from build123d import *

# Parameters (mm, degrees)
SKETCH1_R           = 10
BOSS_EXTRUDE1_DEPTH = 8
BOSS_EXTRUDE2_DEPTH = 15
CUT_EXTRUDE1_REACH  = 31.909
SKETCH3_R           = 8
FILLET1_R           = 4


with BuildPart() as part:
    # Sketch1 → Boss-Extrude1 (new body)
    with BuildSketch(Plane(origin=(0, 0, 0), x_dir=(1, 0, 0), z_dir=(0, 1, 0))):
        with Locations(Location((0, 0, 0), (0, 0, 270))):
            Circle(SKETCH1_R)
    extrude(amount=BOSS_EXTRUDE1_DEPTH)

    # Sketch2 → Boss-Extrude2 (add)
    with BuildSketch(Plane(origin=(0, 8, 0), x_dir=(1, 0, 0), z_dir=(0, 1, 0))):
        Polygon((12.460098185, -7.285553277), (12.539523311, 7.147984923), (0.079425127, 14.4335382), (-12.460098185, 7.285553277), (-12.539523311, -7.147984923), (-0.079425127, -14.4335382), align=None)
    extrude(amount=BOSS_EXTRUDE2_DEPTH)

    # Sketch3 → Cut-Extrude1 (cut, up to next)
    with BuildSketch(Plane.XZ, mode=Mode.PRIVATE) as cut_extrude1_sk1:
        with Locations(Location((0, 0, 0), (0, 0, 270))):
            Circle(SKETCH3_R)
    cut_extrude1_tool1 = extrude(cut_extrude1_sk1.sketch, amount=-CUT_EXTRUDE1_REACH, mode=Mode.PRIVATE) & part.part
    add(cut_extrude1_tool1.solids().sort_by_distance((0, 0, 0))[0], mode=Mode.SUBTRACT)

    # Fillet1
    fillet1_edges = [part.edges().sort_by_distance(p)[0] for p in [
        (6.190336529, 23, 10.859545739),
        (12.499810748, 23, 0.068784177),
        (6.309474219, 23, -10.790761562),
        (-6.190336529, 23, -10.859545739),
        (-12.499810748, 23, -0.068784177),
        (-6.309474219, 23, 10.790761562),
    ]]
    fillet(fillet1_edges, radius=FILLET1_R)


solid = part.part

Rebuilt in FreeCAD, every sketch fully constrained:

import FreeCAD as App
import Part
import Sketcher

V = App.Vector
Q = App.Units.Quantity


def edges_at(feature, points):
    """Names of the edges that pass closest to the given points."""
    edges = feature.Shape.Edges
    near = lambda p: min(range(len(edges)), key=lambda i: edges[i].distToShape(Part.Vertex(*p))[0])
    return sorted({f"Edge{near(p) + 1}" for p in points})


def add_polygon(sketch, points):
    """Adds a closed chain of lines whose ends are joined by coincident constraints."""
    first, n = sketch.GeometryCount, len(points)
    for a, b in zip(points, points[1:] + points[:1]):
        sketch.addGeometry(Part.LineSegment(App.Vector(*a, 0), App.Vector(*b, 0)), False)
    for i in range(n):
        sketch.addConstraint(Sketcher.Constraint("Coincident", first + i, 2, first + (i + 1) % n, 1))

doc = App.newDocument("Part")
body = doc.addObject("PartDesign::Body", "Body")

sketch1 = body.newObject("Sketcher::SketchObject", "Sketch")
sketch1.AttachmentSupport = (doc.getObject("XZ_Plane"), [""])
sketch1.MapMode = "FlatFace"
sketch1.addGeometry(Part.Circle(V(0, 0, 0), V(0, 0, 1), 10), False)
sketch1.addConstraint([
    Sketcher.Constraint("Coincident", 0, 3, -1, 1),
    Sketcher.Constraint("Diameter", 0, Q("20 mm")),
])
pad1 = body.newObject("PartDesign::Pad", "Pad")
pad1.Profile = sketch1
pad1.Length = 8
pad1.Reversed = True

sketch2 = body.newObject("Sketcher::SketchObject", "Sketch001")
sketch2.AttachmentSupport = (doc.getObject("XZ_Plane"), [""])
sketch2.MapMode = "FlatFace"
sketch2.AttachmentOffset = App.Placement(V(0, 0, -8), App.Rotation())
add_polygon(sketch2, [(12, 7), (13, -7), (0, -14), (-12, -7), (-13, 7), (0, 14)])
sketch2.addConstraint([
    Sketcher.Constraint("Symmetric", 0, 2, 3, 2, -1, 1),
    Sketcher.Constraint("Symmetric", 1, 2, 4, 2, -1, 1),
    Sketcher.Constraint("Symmetric", 2, 2, 5, 2, -1, 1),
    Sketcher.Constraint("Equal", 0, 1),
    Sketcher.Constraint("Equal", 1, 2),
    Sketcher.Constraint("DistanceX", 2, 2, -1, 1, Q("12.460098 mm")),
    Sketcher.Constraint("DistanceX", 1, 2, 0, 2, Q("12.460098 mm")),
    Sketcher.Constraint("DistanceY", 1, 2, -1, 1, Q("14.433538 mm")),
    Sketcher.Constraint("DistanceX", 2, 2, 0, 2, Q("24.999621 mm")),
])
pad2 = body.newObject("PartDesign::Pad", "Pad001")
pad2.Profile = sketch2
pad2.Length = 15
pad2.Reversed = True

sketch3 = body.newObject("Sketcher::SketchObject", "Sketch002")
sketch3.AttachmentSupport = (doc.getObject("XZ_Plane"), [""])
sketch3.MapMode = "FlatFace"
sketch3.addGeometry(Part.Circle(V(0, 0, 0), V(0, 0, 1), 8), False)
sketch3.addConstraint([
    Sketcher.Constraint("Coincident", 0, 3, -1, 1),
    Sketcher.Constraint("Diameter", 0, Q("16 mm")),
])
pocket1 = body.newObject("PartDesign::Pocket", "Pocket")
pocket1.Profile = sketch3
pocket1.Type = "UpToFirst"
doc.recompute()

fillet = body.newObject("PartDesign::Fillet", "Fillet")
fillet.Base = (pocket1, edges_at(pocket1, [
    (6.19, 23, 10.86),
    (12.5, 23, 0.069),
    (6.309, 23, -10.791),
    (-6.19, 23, -10.86),
    (-12.5, 23, -0.069),
    (-6.309, 23, 10.791),
]))
fillet.Radius = 4

doc.recompute()
